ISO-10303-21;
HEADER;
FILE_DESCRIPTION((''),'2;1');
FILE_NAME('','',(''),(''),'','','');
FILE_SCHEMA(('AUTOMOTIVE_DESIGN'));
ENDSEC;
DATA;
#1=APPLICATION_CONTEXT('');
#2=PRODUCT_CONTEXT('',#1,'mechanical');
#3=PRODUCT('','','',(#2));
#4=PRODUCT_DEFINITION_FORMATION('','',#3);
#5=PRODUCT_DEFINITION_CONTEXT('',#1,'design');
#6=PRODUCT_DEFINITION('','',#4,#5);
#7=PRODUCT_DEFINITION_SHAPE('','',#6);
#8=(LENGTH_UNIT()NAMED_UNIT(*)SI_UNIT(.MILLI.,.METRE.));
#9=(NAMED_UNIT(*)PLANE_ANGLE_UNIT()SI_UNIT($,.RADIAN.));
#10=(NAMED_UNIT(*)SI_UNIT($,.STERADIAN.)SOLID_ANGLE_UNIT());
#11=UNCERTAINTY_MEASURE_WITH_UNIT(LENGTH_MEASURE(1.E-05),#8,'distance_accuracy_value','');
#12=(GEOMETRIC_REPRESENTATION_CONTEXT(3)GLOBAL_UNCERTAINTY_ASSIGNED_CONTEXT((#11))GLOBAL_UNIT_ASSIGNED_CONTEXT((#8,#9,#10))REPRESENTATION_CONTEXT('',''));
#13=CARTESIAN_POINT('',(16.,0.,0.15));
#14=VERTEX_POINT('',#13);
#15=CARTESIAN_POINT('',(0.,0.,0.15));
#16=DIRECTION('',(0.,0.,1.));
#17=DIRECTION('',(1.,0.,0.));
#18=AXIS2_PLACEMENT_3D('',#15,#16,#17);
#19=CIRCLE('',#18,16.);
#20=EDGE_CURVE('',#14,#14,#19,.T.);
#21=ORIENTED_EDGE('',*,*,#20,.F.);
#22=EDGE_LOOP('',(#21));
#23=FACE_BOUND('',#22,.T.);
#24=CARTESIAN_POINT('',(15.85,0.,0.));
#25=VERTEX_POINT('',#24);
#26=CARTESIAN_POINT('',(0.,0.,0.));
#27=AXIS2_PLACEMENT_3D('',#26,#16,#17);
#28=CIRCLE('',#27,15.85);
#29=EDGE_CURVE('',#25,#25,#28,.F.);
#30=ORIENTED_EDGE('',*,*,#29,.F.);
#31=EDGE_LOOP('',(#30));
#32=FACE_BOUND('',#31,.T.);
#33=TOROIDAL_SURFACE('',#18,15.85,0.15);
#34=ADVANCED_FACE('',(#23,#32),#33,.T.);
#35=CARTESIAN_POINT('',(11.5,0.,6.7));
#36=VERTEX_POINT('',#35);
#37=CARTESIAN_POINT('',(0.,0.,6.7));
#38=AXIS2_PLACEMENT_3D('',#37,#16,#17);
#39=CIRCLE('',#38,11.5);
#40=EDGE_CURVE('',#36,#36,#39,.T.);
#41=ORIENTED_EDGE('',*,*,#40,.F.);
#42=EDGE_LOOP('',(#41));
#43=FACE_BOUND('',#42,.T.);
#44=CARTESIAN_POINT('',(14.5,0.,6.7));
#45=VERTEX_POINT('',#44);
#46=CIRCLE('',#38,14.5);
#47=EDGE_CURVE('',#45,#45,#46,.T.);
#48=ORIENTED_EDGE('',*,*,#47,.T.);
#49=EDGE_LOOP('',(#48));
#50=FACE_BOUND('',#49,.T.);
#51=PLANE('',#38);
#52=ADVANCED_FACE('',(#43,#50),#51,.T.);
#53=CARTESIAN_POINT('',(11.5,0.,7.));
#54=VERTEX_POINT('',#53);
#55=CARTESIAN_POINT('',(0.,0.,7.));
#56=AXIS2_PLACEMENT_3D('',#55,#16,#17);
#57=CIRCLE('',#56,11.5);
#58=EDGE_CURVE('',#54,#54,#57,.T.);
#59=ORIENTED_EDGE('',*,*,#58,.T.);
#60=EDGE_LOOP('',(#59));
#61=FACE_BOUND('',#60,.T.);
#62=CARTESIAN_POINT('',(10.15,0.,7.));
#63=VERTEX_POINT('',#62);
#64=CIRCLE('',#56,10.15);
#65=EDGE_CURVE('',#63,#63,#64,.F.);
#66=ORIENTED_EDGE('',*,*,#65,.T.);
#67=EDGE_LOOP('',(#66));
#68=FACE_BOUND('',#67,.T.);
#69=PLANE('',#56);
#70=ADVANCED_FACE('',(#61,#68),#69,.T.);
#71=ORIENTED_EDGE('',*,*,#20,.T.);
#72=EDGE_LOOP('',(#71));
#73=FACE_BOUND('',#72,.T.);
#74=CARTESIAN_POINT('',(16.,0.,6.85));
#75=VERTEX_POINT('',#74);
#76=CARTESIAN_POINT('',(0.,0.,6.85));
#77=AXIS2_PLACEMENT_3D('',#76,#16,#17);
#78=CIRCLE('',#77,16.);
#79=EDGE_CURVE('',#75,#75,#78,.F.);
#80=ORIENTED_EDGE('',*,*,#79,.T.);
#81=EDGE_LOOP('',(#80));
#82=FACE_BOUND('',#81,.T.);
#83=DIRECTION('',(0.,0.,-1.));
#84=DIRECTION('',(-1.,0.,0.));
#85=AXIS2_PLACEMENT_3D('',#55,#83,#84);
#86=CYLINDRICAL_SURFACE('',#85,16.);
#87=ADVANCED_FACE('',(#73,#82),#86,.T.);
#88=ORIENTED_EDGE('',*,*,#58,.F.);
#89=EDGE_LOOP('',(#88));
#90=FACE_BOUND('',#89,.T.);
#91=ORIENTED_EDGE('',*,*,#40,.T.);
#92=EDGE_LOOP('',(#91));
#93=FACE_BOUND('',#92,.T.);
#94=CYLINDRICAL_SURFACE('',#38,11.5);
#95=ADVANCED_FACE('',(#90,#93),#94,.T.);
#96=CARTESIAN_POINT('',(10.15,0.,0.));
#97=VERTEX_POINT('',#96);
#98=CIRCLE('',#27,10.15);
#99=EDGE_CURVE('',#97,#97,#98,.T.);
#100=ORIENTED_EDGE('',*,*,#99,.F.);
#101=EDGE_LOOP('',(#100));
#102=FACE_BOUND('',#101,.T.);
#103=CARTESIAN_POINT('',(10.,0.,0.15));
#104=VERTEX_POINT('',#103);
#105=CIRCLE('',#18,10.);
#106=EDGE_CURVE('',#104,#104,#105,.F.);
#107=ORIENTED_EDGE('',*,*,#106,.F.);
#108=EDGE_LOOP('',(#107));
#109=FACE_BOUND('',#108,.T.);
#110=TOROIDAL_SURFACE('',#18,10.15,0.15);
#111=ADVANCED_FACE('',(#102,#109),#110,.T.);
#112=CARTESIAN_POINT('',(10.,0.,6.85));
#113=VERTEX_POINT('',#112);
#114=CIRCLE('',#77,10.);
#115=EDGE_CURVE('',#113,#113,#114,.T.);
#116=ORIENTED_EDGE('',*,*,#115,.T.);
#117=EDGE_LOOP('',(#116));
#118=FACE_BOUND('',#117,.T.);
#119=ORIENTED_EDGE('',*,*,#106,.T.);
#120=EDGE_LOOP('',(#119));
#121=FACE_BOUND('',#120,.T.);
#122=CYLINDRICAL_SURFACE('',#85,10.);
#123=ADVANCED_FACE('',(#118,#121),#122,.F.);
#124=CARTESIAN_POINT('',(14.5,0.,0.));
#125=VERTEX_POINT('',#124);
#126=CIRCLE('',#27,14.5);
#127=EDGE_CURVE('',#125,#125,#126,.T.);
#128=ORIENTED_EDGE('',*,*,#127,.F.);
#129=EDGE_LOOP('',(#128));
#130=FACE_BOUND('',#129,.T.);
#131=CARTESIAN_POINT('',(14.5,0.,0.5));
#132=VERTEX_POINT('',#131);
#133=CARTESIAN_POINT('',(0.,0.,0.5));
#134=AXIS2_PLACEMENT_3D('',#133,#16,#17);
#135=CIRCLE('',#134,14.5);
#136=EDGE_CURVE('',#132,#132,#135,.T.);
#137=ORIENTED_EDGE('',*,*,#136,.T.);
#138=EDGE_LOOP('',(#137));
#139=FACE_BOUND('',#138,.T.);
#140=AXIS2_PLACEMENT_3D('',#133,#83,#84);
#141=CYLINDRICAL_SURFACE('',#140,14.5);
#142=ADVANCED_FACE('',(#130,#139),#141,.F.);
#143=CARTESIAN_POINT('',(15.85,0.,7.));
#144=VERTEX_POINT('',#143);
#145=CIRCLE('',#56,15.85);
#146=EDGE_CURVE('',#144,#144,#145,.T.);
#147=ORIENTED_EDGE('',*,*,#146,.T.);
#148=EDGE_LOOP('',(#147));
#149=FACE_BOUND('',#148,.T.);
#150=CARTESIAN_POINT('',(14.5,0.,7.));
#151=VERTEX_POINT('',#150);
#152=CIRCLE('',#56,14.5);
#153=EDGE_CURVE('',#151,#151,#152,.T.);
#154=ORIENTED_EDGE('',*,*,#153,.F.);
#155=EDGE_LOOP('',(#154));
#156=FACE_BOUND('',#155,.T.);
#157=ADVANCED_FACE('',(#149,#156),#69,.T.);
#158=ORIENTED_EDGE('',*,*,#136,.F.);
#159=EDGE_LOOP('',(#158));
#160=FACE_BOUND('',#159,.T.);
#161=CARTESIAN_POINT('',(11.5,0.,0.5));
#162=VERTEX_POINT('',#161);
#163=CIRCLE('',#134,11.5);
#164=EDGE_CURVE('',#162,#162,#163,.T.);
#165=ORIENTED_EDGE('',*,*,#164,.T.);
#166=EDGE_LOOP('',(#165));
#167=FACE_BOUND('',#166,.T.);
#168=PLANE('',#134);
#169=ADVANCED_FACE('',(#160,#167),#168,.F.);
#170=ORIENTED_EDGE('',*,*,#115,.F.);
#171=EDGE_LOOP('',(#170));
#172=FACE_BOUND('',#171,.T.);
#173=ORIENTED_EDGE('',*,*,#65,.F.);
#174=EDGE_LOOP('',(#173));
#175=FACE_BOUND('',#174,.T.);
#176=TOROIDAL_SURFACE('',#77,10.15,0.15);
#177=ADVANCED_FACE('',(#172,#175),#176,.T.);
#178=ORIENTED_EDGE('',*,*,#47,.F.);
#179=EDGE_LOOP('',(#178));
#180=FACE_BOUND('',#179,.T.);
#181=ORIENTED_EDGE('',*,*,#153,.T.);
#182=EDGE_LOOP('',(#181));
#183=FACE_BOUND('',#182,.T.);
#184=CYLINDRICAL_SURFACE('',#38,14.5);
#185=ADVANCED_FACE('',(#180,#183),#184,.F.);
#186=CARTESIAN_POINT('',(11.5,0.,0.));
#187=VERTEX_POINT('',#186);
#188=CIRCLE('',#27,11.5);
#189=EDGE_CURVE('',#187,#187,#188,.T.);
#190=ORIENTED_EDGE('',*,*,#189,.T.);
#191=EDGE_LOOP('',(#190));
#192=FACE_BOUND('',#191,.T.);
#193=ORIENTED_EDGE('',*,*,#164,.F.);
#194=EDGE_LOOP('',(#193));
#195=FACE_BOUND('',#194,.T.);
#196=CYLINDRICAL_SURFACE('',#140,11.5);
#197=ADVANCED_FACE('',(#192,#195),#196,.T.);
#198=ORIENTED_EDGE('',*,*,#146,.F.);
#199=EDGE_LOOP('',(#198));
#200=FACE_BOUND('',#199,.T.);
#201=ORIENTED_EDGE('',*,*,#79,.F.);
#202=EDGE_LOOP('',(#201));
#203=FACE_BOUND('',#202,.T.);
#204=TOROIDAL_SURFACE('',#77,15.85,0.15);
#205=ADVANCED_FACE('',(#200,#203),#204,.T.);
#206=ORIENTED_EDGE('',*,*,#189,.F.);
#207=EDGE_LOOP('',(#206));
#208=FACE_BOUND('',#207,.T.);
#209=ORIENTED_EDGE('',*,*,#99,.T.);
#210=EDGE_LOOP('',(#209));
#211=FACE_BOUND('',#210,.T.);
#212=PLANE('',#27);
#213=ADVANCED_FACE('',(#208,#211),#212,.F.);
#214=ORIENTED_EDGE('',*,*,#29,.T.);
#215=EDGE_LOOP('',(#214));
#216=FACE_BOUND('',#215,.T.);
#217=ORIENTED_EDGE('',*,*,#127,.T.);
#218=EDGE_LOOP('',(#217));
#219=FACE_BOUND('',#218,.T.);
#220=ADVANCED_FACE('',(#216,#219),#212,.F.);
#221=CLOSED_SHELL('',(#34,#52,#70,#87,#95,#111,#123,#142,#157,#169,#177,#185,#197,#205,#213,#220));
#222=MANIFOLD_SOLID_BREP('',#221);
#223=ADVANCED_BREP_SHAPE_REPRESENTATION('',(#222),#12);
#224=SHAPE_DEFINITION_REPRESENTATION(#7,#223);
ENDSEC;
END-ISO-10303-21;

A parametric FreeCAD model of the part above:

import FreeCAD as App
import Part
import Sketcher

V = App.Vector


def edges_at(feature, points):
    """Names of the edges that pass closest to the given points."""
    edges = feature.Shape.Edges
    near = lambda p: min(range(len(edges)), key=lambda i: edges[i].distToShape(Part.Vertex(*p))[0])
    return sorted({f"Edge{near(p) + 1}" for p in points})

doc = App.newDocument("Part")
body = doc.addObject("PartDesign::Body", "Body")

# Sketch on XY plane
sketch1 = body.newObject("Sketcher::SketchObject", "Sketch")
sketch1.AttachmentSupport = (doc.getObject("XY_Plane"), [""])
sketch1.MapMode = "FlatFace"
sketch1.addGeometry([
    Part.Circle(V(0, 0, 0), V(0, 0, 1), 16),
    Part.Circle(V(0, 0, 0), V(0, 0, 1), 10),
], False)
sketch1.addConstraint([
    Sketcher.Constraint("Coincident", 0, 3, -1, 1),
    Sketcher.Constraint("Coincident", 1, 3, -1, 1),
    Sketcher.Constraint("Diameter", 0, 32.0),
    Sketcher.Constraint("Diameter", 1, 20.0),
])
pad1 = body.newObject("PartDesign::Pad", "Pad")
pad1.Profile = sketch1
pad1.Length = 7

# Sketch on XY plane
sketch2 = body.newObject("Sketcher::SketchObject", "Sketch001")
sketch2.AttachmentSupport = (doc.getObject("XY_Plane"), [""])
sketch2.MapMode = "FlatFace"
sketch2.AttachmentOffset = App.Placement(V(0, 0, 7), App.Rotation())
sketch2.addGeometry([
    Part.Circle(V(0, 0, 0), V(0, 0, 1), 14.5),
    Part.Circle(V(0, 0, 0), V(0, 0, 1), 11.5),
], False)
sketch2.addConstraint([
    Sketcher.Constraint("Coincident", 0, 3, -1, 1),
    Sketcher.Constraint("Coincident", 1, 3, -1, 1),
    Sketcher.Constraint("Diameter", 0, 29.0),
    Sketcher.Constraint("Diameter", 1, 23.0),
])
pocket1 = body.newObject("PartDesign::Pocket", "Pocket")
pocket1.Profile = sketch2
pocket1.Length = 0.3

# Sketch on XY plane
sketch3 = body.newObject("Sketcher::SketchObject", "Sketch002")
sketch3.AttachmentSupport = (doc.getObject("XY_Plane"), [""])
sketch3.MapMode = "FlatFace"
sketch3.AttachmentOffset = App.Placement(V(0, 0, 0.5), App.Rotation())
sketch3.addGeometry([
    Part.Circle(V(0, 0, 0), V(0, 0, 1), 14.5),
    Part.Circle(V(0, 0, 0), V(0, 0, 1), 11.5),
], False)
sketch3.addConstraint([
    Sketcher.Constraint("Coincident", 0, 3, -1, 1),
    Sketcher.Constraint("Coincident", 1, 3, -1, 1),
    Sketcher.Constraint("Diameter", 0, 29.0),
    Sketcher.Constraint("Diameter", 1, 23.0),
])
pocket2 = body.newObject("PartDesign::Pocket", "Pocket001")
pocket2.Profile = sketch3
pocket2.Length = 0.5
doc.recompute()

fillet = body.newObject("PartDesign::Fillet", "Fillet")
fillet.Base = (pocket2, edges_at(pocket2, [
    (-16, 0, 0),
    (-16, 0, 7),
    (-10, 0, 0),
    (-10, 0, 7),
]))
fillet.Radius = 0.15

doc.recompute()
